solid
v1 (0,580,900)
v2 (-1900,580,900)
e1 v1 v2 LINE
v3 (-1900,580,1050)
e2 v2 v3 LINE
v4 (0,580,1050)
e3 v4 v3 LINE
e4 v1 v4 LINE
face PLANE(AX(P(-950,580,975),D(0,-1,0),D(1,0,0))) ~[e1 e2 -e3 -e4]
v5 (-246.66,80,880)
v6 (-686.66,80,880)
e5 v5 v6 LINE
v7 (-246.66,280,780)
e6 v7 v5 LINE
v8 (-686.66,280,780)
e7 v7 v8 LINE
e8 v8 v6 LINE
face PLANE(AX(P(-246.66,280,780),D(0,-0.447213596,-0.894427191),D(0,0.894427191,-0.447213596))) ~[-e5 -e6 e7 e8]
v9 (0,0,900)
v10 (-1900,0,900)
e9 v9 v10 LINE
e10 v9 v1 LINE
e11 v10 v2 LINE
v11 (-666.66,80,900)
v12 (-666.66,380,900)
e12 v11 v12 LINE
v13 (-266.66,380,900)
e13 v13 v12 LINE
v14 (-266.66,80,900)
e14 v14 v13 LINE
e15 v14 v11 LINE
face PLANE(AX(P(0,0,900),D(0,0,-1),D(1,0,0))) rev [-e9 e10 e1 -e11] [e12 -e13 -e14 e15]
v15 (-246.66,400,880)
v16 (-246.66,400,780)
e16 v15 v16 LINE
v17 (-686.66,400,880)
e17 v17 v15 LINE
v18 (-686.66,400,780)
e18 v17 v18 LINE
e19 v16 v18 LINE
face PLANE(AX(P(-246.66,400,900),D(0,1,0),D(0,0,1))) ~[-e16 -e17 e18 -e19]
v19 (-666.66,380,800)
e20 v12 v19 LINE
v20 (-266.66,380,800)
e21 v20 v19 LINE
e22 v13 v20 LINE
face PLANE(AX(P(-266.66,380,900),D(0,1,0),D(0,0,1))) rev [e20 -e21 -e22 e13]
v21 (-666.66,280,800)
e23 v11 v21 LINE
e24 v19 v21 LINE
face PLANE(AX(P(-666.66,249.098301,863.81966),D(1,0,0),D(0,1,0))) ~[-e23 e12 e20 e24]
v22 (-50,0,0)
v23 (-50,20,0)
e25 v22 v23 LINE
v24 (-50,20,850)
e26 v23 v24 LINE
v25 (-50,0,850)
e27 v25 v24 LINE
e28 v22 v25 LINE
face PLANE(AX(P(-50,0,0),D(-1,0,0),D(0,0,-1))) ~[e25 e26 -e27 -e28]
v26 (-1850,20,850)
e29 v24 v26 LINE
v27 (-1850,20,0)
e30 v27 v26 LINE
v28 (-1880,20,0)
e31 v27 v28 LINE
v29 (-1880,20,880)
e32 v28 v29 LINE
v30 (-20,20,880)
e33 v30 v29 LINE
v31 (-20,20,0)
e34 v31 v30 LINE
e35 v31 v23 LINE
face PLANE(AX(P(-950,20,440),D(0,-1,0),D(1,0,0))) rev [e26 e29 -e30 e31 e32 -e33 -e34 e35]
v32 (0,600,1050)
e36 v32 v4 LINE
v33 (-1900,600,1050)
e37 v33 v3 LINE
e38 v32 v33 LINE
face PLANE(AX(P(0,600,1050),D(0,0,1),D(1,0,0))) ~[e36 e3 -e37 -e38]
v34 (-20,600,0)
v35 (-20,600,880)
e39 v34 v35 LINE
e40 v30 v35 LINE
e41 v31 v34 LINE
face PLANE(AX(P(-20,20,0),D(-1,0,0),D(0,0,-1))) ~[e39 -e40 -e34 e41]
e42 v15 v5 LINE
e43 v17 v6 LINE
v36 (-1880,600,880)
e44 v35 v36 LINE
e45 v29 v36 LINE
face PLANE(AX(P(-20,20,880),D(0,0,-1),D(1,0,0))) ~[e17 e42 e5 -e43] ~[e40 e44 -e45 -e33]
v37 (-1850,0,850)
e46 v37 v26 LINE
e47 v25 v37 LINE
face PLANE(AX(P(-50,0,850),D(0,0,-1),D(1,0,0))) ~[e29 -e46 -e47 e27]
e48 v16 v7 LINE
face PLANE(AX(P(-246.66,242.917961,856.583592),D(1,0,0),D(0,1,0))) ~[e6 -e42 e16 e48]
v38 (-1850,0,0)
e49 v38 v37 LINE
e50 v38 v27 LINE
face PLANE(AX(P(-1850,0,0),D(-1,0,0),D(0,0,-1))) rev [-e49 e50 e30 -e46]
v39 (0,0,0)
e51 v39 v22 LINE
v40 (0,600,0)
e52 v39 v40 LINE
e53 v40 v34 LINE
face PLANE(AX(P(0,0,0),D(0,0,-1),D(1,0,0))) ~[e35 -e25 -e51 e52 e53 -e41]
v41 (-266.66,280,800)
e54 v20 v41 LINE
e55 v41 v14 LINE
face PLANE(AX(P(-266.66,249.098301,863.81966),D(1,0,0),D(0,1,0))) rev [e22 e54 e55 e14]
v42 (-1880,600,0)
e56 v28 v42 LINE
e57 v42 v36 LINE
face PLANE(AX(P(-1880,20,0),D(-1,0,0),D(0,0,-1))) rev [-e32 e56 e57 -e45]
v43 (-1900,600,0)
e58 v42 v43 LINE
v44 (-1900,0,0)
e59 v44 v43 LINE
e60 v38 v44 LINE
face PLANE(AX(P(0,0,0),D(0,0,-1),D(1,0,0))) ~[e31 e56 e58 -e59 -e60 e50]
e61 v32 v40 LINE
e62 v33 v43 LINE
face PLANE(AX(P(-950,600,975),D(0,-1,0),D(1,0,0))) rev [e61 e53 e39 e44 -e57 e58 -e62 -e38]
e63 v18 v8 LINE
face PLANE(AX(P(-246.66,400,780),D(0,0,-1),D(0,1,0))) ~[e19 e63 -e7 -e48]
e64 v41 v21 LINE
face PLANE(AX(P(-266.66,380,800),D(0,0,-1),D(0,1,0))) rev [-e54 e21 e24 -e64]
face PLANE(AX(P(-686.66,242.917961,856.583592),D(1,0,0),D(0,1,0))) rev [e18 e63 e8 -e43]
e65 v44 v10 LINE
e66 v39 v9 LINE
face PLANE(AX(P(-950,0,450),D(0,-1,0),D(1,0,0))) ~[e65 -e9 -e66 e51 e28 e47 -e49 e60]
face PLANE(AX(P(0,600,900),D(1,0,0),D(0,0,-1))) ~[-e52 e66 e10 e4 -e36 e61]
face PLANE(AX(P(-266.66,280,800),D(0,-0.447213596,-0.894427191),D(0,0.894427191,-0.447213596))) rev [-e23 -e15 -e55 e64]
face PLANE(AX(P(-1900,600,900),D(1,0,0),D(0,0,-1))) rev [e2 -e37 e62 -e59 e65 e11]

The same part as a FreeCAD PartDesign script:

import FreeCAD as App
import Part
import Sketcher
Q = App.Units.Quantity

doc = App.newDocument("Part")
body = doc.addObject("PartDesign::Body", "Body")

sketch1 = body.newObject("Sketcher::SketchObject", "Sketch")
sketch1.AttachmentSupport = (doc.getObject("XZ_Plane"), [""])
sketch1.MapMode = "FlatFace"
sketch1.addGeometry(Part.LineSegment(App.Vector(0, 880, 0), App.Vector(0, 0, 0)), False)
sketch1.addGeometry(Part.LineSegment(App.Vector(0, 0, 0), App.Vector(1860, 0, 0)), False)
sketch1.addGeometry(Part.LineSegment(App.Vector(1860, 0, 0), App.Vector(1860, 880, 0)), False)
sketch1.addGeometry(Part.LineSegment(App.Vector(1860, 880, 0), App.Vector(0, 880, 0)), False)
sketch1.addConstraint(Sketcher.Constraint("Coincident", 0, 2, 1, 1))
sketch1.addConstraint(Sketcher.Constraint("Coincident", 1, 2, 2, 1))
sketch1.addConstraint(Sketcher.Constraint("Coincident", 2, 2, 3, 1))
sketch1.addConstraint(Sketcher.Constraint("Coincident", 3, 2, 0, 1))
sketch1.addConstraint(Sketcher.Constraint("Vertical", 0))
sketch1.addConstraint(Sketcher.Constraint("Horizontal", 1))
sketch1.addConstraint(Sketcher.Constraint("Vertical", 2))
sketch1.addConstraint(Sketcher.Constraint("Horizontal", 3))
sketch1.addConstraint(Sketcher.Constraint("Coincident", 0, 2, -1, 1))
sketch1.addConstraint(Sketcher.Constraint("DistanceX", 1, 1, 1, 2, Q("1860 mm")))
sketch1.addConstraint(Sketcher.Constraint("DistanceY", 0, 2, 0, 1, Q("880 mm")))
pad1 = body.newObject("PartDesign::Pad", "Pad")
pad1.Profile = sketch1
pad1.Length = 580
pad1.Reversed = True
body2 = doc.addObject("PartDesign::Body", "Body001")
doc.recompute()

body.Placement = App.Placement(App.Vector(20, 20, 0), App.Rotation(App.Vector(0, 0, 1), 0))
boolean = body2.newObject("PartDesign::Boolean", "Boolean")
boolean.Type = "Fuse"
boolean.addObjects([body])
body3 = doc.addObject("PartDesign::Body", "Body002")

sketch2 = body3.newObject("Sketcher::SketchObject", "Sketch001")
sketch2.AttachmentSupport = (doc.getObject("XZ_Plane002"), [""])
sketch2.MapMode = "FlatFace"
sketch2.addGeometry(Part.LineSegment(App.Vector(0, 850, 0), App.Vector(0, 0, 0)), False)
sketch2.addGeometry(Part.LineSegment(App.Vector(0, 0, 0), App.Vector(1800, 0, 0)), False)
sketch2.addGeometry(Part.LineSegment(App.Vector(1800, 0, 0), App.Vector(1800, 850, 0)), False)
sketch2.addGeometry(Part.LineSegment(App.Vector(1800, 850, 0), App.Vector(0, 850, 0)), False)
sketch2.addConstraint(Sketcher.Constraint("Coincident", 0, 2, 1, 1))
sketch2.addConstraint(Sketcher.Constraint("Coincident", 1, 2, 2, 1))
sketch2.addConstraint(Sketcher.Constraint("Coincident", 2, 2, 3, 1))
sketch2.addConstraint(Sketcher.Constraint("Coincident", 3, 2, 0, 1))
sketch2.addConstraint(Sketcher.Constraint("Vertical", 0))
sketch2.addConstraint(Sketcher.Constraint("Horizontal", 1))
sketch2.addConstraint(Sketcher.Constraint("Vertical", 2))
sketch2.addConstraint(Sketcher.Constraint("Horizontal", 3))
sketch2.addConstraint(Sketcher.Constraint("Coincident", 0, 2, -1, 1))
sketch2.addConstraint(Sketcher.Constraint("DistanceX", 1, 1, 1, 2, Q("1800 mm")))
sketch2.addConstraint(Sketcher.Constraint("DistanceY", 0, 2, 0, 1, Q("850 mm")))
pad2 = body3.newObject("PartDesign::Pad", "Pad001")
pad2.Profile = sketch2
pad2.Length = 20
pad2.Reversed = True
body4 = doc.addObject("PartDesign::Body", "Body003")
doc.recompute()

body3.Placement = App.Placement(App.Vector(50, 0, 0), App.Rotation(App.Vector(0, 0, 1), 0))
boolean2 = body4.newObject("PartDesign::Boolean", "Boolean001")
boolean2.Type = "Fuse"
boolean2.addObjects([body3])
body5 = doc.addObject("PartDesign::Body", "Body004")

sketch3 = body5.newObject("Sketcher::SketchObject", "Sketch002")
sketch3.AttachmentSupport = (doc.getObject("XY_Plane004"), [""])
sketch3.MapMode = "FlatFace"
sketch3.addGeometry(Part.LineSegment(App.Vector(0, 300, 0), App.Vector(0, 0, 0)), False)
sketch3.addGeometry(Part.LineSegment(App.Vector(0, 0, 0), App.Vector(400, 0, 0)), False)
sketch3.addGeometry(Part.LineSegment(App.Vector(400, 0, 0), App.Vector(400, 300, 0)), False)
sketch3.addGeometry(Part.LineSegment(App.Vector(400, 300, 0), App.Vector(0, 300, 0)), False)
sketch3.addConstraint(Sketcher.Constraint("Coincident", 0, 2, 1, 1))
sketch3.addConstraint(Sketcher.Constraint("Coincident", 1, 2, 2, 1))
sketch3.addConstraint(Sketcher.Constraint("Coincident", 2, 2, 3, 1))
sketch3.addConstraint(Sketcher.Constraint("Coincident", 3, 2, 0, 1))
sketch3.addConstraint(Sketcher.Constraint("Vertical", 0))
sketch3.addConstraint(Sketcher.Constraint("Horizontal", 1))
sketch3.addConstraint(Sketcher.Constraint("Vertical", 2))
sketch3.addConstraint(Sketcher.Constraint("Horizontal", 3))
sketch3.addConstraint(Sketcher.Constraint("Coincident", 0, 2, -1, 1))
sketch3.addConstraint(Sketcher.Constraint("DistanceX", 1, 1, 1, 2, Q("400 mm")))
sketch3.addConstraint(Sketcher.Constraint("DistanceY", 0, 2, 0, 1, Q("300 mm")))
pad3 = body5.newObject("PartDesign::Pad", "Pad002")
pad3.Profile = sketch3
pad3.Length = 20
body6 = doc.addObject("PartDesign::Body", "Body005")
doc.recompute()

body5.Placement = App.Placement(App.Vector(266.66, 80, 880), App.Rotation(App.Vector(0, 0, 1), 0))
boolean3 = body6.newObject("PartDesign::Boolean", "Boolean002")
boolean3.Type = "Fuse"
boolean3.addObjects([body5])
doc.recompute()

boolean4 = body6.newObject("PartDesign::Boolean", "Boolean003")
boolean4.Type = "Fuse"
boolean4.addObjects([body2])
doc.recompute()

boolean5 = body6.newObject("PartDesign::Boolean", "Boolean004")
boolean5.Type = "Fuse"
boolean5.addObjects([body4])
body7 = doc.addObject("PartDesign::Body", "Body006")

sketch4 = body7.newObject("Sketcher::SketchObject", "Sketch003")
sketch4.AttachmentSupport = (doc.getObject("XZ_Plane006"), [""])
sketch4.MapMode = "FlatFace"
sketch4.addGeometry(Part.LineSegment(App.Vector(0, 150, 0), App.Vector(0, 0, 0)), False)
sketch4.addGeometry(Part.LineSegment(App.Vector(0, 0, 0), App.Vector(1900, 0, 0)), False)
sketch4.addGeometry(Part.LineSegment(App.Vector(1900, 0, 0), App.Vector(1900, 150, 0)), False)
sketch4.addGeometry(Part.LineSegment(App.Vector(1900, 150, 0), App.Vector(0, 150, 0)), False)
sketch4.addConstraint(Sketcher.Constraint("Coincident", 0, 2, 1, 1))
sketch4.addConstraint(Sketcher.Constraint("Coincident", 1, 2, 2, 1))
sketch4.addConstraint(Sketcher.Constraint("Coincident", 2, 2, 3, 1))
sketch4.addConstraint(Sketcher.Constraint("Coincident", 3, 2, 0, 1))
sketch4.addConstraint(Sketcher.Constraint("Vertical", 0))
sketch4.addConstraint(Sketcher.Constraint("Horizontal", 1))
sketch4.addConstraint(Sketcher.Constraint("Vertical", 2))
sketch4.addConstraint(Sketcher.Constraint("Horizontal", 3))
sketch4.addConstraint(Sketcher.Constraint("Coincident", 0, 2, -1, 1))
sketch4.addConstraint(Sketcher.Constraint("DistanceX", 1, 1, 1, 2, Q("1900 mm")))
sketch4.addConstraint(Sketcher.Constraint("DistanceY", 0, 2, 0, 1, Q("150 mm")))
pad4 = body7.newObject("PartDesign::Pad", "Pad003")
pad4.Profile = sketch4
pad4.Length = 20
body8 = doc.addObject("PartDesign::Body", "Body007")
doc.recompute()

body7.Placement = App.Placement(App.Vector(0, 600, 900), App.Rotation(App.Vector(0, 0, 1), 0))
boolean6 = body8.newObject("PartDesign::Boolean", "Boolean005")
boolean6.Type = "Fuse"
boolean6.addObjects([body7])
body9 = doc.addObject("PartDesign::Body", "Body008")

sketch5 = body9.newObject("Sketcher::SketchObject", "Sketch004")
sketch5.AttachmentSupport = (doc.getObject("XZ_Plane008"), [""])
sketch5.MapMode = "FlatFace"
sketch5.addGeometry(Part.LineSegment(App.Vector(0, 900, 0), App.Vector(0, 0, 0)), False)
sketch5.addGeometry(Part.LineSegment(App.Vector(0, 0, 0), App.Vector(1900, 0, 0)), False)
sketch5.addGeometry(Part.LineSegment(App.Vector(1900, 0, 0), App.Vector(1900, 900, 0)), False)
sketch5.addGeometry(Part.LineSegment(App.Vector(1900, 900, 0), App.Vector(0, 900, 0)), False)
sketch5.addConstraint(Sketcher.Constraint("Coincident", 0, 2, 1, 1))
sketch5.addConstraint(Sketcher.Constraint("Coincident", 1, 2, 2, 1))
sketch5.addConstraint(Sketcher.Constraint("Coincident", 2, 2, 3, 1))
sketch5.addConstraint(Sketcher.Constraint("Coincident", 3, 2, 0, 1))
sketch5.addConstraint(Sketcher.Constraint("Vertical", 0))
sketch5.addConstraint(Sketcher.Constraint("Horizontal", 1))
sketch5.addConstraint(Sketcher.Constraint("Vertical", 2))
sketch5.addConstraint(Sketcher.Constraint("Horizontal", 3))
sketch5.addConstraint(Sketcher.Constraint("Coincident", 0, 2, -1, 1))
sketch5.addConstraint(Sketcher.Constraint("DistanceX", 1, 1, 1, 2, Q("1900 mm")))
sketch5.addConstraint(Sketcher.Constraint("DistanceY", 0, 2, 0, 1, Q("900 mm")))
pad5 = body9.newObject("PartDesign::Pad", "Pad004")
pad5.Profile = sketch5
pad5.Length = 600
pad5.Reversed = True
doc.recompute()

boolean7 = body9.newObject("PartDesign::Boolean", "Boolean006")
boolean7.Type = "Fuse"
boolean7.addObjects([body8])
doc.recompute()

boolean8 = body9.newObject("PartDesign::Boolean", "Boolean007")
boolean8.Type = "Cut"
boolean8.addObjects([body6])
body10 = doc.addObject("PartDesign::Body", "Body009")

sketch6 = body10.newObject("Sketcher::SketchObject", "Sketch005")
sketch6.AttachmentSupport = (doc.getObject("YZ_Plane009"), [""])
sketch6.MapMode = "FlatFace"
sketch6.addGeometry(Part.LineSegment(App.Vector(300, 0, 0), App.Vector(0, 0, 0)), False)
sketch6.addGeometry(Part.LineSegment(App.Vector(0, 0, 0), App.Vector(200, -100, 0)), False)
sketch6.addGeometry(Part.LineSegment(App.Vector(200, -100, 0), App.Vector(300, -100, 0)), False)
sketch6.addGeometry(Part.LineSegment(App.Vector(300, -100, 0), App.Vector(300, 0, 0)), False)
sketch6.addConstraint(Sketcher.Constraint("Coincident", 0, 2, 1, 1))
sketch6.addConstraint(Sketcher.Constraint("Coincident", 1, 2, 2, 1))
sketch6.addConstraint(Sketcher.Constraint("Coincident", 2, 2, 3, 1))
sketch6.addConstraint(Sketcher.Constraint("Coincident", 3, 2, 0, 1))
sketch6.addConstraint(Sketcher.Constraint("Horizontal", 0))
sketch6.addConstraint(Sketcher.Constraint("Horizontal", 2))
sketch6.addConstraint(Sketcher.Constraint("Vertical", 3))
sketch6.addConstraint(Sketcher.Constraint("Coincident", 0, 2, -1, 1))
sketch6.addConstraint(Sketcher.Constraint("Equal", 2, 3))
sketch6.addConstraint(Sketcher.Constraint("DistanceX", 0, 2, 0, 1, Q("300 mm")))
sketch6.addConstraint(Sketcher.Constraint("DistanceX", 2, 1, 2, 2, Q("100 mm")))
pad6 = body10.newObject("PartDesign::Pad", "Pad005")
pad6.Profile = sketch6
pad6.Length = 400
body11 = doc.addObject("PartDesign::Body", "Body010")

sketch7 = body11.newObject("Sketcher::SketchObject", "Sketch006")
sketch7.AttachmentSupport = (doc.getObject("YZ_Plane010"), [""])
sketch7.MapMode = "FlatFace"
sketch7.addGeometry(Part.LineSegment(App.Vector(320, 0, 0), App.Vector(-40, 0, 0)), False)
sketch7.addGeometry(Part.LineSegment(App.Vector(-40, 0, 0), App.Vector(200, -120, 0)), False)
sketch7.addGeometry(Part.LineSegment(App.Vector(200, -120, 0), App.Vector(320, -120, 0)), False)
sketch7.addGeometry(Part.LineSegment(App.Vector(320, -120, 0), App.Vector(320, 0, 0)), False)
sketch7.addConstraint(Sketcher.Constraint("Coincident", 0, 2, 1, 1))
sketch7.addConstraint(Sketcher.Constraint("Coincident", 1, 2, 2, 1))
sketch7.addConstraint(Sketcher.Constraint("Coincident", 2, 2, 3, 1))
sketch7.addConstraint(Sketcher.Constraint("Coincident", 3, 2, 0, 1))
sketch7.addConstraint(Sketcher.Constraint("Horizontal", 0))
sketch7.addConstraint(Sketcher.Constraint("Horizontal", 2))
sketch7.addConstraint(Sketcher.Constraint("Vertical", 3))
sketch7.addConstraint(Sketcher.Constraint("PointOnObject", 0, 2, -1))
sketch7.addConstraint(Sketcher.Constraint("Equal", 2, 3))
sketch7.addConstraint(Sketcher.Constraint("DistanceX", 0, 2, 0, 1, Q("360 mm")))
sketch7.addConstraint(Sketcher.Constraint("DistanceX", 2, 1, 2, 2, Q("120 mm")))
sketch7.addConstraint(Sketcher.Constraint("DistanceX", 0, 2, -1, 1, Q("40 mm")))
pad7 = body11.newObject("PartDesign::Pad", "Pad006")
pad7.Profile = sketch7
pad7.Length = 440
body12 = doc.addObject("PartDesign::Body", "Body011")
doc.recompute()

body11.Placement = App.Placement(App.Vector(-20, 0, 0), App.Rotation(App.Vector(0, 0, 1), 0))
boolean9 = body12.newObject("PartDesign::Boolean", "Boolean008")
boolean9.Type = "Fuse"
boolean9.addObjects([body11])
doc.recompute()

boolean10 = body12.newObject("PartDesign::Boolean", "Boolean009")
boolean10.Type = "Cut"
boolean10.addObjects([body10])
body13 = doc.addObject("PartDesign::Body", "Body012")
doc.recompute()

body12.Placement = App.Placement(App.Vector(266.66, 80, 900), App.Rotation(App.Vector(0, 0, 1), 0))
boolean11 = body13.newObject("PartDesign::Boolean", "Boolean010")
boolean11.Type = "Fuse"
boolean11.addObjects([body12])
doc.recompute()

boolean12 = body13.newObject("PartDesign::Boolean", "Boolean011")
boolean12.Type = "Fuse"
boolean12.addObjects([body9])
body14 = doc.addObject("PartDesign::Body", "Body013")
doc.recompute()

mirroring = doc.addObject("Part::Mirroring", "Mirroring")
mirroring.Source = body13
mirroring.Base = App.Vector(0, 0, 0)
mirroring.Normal = App.Vector(1, 0, 0)
body14.BaseFeature = mirroring
doc.recompute()
body13.Visibility = False
mirroring.Visibility = False

doc.recompute()
